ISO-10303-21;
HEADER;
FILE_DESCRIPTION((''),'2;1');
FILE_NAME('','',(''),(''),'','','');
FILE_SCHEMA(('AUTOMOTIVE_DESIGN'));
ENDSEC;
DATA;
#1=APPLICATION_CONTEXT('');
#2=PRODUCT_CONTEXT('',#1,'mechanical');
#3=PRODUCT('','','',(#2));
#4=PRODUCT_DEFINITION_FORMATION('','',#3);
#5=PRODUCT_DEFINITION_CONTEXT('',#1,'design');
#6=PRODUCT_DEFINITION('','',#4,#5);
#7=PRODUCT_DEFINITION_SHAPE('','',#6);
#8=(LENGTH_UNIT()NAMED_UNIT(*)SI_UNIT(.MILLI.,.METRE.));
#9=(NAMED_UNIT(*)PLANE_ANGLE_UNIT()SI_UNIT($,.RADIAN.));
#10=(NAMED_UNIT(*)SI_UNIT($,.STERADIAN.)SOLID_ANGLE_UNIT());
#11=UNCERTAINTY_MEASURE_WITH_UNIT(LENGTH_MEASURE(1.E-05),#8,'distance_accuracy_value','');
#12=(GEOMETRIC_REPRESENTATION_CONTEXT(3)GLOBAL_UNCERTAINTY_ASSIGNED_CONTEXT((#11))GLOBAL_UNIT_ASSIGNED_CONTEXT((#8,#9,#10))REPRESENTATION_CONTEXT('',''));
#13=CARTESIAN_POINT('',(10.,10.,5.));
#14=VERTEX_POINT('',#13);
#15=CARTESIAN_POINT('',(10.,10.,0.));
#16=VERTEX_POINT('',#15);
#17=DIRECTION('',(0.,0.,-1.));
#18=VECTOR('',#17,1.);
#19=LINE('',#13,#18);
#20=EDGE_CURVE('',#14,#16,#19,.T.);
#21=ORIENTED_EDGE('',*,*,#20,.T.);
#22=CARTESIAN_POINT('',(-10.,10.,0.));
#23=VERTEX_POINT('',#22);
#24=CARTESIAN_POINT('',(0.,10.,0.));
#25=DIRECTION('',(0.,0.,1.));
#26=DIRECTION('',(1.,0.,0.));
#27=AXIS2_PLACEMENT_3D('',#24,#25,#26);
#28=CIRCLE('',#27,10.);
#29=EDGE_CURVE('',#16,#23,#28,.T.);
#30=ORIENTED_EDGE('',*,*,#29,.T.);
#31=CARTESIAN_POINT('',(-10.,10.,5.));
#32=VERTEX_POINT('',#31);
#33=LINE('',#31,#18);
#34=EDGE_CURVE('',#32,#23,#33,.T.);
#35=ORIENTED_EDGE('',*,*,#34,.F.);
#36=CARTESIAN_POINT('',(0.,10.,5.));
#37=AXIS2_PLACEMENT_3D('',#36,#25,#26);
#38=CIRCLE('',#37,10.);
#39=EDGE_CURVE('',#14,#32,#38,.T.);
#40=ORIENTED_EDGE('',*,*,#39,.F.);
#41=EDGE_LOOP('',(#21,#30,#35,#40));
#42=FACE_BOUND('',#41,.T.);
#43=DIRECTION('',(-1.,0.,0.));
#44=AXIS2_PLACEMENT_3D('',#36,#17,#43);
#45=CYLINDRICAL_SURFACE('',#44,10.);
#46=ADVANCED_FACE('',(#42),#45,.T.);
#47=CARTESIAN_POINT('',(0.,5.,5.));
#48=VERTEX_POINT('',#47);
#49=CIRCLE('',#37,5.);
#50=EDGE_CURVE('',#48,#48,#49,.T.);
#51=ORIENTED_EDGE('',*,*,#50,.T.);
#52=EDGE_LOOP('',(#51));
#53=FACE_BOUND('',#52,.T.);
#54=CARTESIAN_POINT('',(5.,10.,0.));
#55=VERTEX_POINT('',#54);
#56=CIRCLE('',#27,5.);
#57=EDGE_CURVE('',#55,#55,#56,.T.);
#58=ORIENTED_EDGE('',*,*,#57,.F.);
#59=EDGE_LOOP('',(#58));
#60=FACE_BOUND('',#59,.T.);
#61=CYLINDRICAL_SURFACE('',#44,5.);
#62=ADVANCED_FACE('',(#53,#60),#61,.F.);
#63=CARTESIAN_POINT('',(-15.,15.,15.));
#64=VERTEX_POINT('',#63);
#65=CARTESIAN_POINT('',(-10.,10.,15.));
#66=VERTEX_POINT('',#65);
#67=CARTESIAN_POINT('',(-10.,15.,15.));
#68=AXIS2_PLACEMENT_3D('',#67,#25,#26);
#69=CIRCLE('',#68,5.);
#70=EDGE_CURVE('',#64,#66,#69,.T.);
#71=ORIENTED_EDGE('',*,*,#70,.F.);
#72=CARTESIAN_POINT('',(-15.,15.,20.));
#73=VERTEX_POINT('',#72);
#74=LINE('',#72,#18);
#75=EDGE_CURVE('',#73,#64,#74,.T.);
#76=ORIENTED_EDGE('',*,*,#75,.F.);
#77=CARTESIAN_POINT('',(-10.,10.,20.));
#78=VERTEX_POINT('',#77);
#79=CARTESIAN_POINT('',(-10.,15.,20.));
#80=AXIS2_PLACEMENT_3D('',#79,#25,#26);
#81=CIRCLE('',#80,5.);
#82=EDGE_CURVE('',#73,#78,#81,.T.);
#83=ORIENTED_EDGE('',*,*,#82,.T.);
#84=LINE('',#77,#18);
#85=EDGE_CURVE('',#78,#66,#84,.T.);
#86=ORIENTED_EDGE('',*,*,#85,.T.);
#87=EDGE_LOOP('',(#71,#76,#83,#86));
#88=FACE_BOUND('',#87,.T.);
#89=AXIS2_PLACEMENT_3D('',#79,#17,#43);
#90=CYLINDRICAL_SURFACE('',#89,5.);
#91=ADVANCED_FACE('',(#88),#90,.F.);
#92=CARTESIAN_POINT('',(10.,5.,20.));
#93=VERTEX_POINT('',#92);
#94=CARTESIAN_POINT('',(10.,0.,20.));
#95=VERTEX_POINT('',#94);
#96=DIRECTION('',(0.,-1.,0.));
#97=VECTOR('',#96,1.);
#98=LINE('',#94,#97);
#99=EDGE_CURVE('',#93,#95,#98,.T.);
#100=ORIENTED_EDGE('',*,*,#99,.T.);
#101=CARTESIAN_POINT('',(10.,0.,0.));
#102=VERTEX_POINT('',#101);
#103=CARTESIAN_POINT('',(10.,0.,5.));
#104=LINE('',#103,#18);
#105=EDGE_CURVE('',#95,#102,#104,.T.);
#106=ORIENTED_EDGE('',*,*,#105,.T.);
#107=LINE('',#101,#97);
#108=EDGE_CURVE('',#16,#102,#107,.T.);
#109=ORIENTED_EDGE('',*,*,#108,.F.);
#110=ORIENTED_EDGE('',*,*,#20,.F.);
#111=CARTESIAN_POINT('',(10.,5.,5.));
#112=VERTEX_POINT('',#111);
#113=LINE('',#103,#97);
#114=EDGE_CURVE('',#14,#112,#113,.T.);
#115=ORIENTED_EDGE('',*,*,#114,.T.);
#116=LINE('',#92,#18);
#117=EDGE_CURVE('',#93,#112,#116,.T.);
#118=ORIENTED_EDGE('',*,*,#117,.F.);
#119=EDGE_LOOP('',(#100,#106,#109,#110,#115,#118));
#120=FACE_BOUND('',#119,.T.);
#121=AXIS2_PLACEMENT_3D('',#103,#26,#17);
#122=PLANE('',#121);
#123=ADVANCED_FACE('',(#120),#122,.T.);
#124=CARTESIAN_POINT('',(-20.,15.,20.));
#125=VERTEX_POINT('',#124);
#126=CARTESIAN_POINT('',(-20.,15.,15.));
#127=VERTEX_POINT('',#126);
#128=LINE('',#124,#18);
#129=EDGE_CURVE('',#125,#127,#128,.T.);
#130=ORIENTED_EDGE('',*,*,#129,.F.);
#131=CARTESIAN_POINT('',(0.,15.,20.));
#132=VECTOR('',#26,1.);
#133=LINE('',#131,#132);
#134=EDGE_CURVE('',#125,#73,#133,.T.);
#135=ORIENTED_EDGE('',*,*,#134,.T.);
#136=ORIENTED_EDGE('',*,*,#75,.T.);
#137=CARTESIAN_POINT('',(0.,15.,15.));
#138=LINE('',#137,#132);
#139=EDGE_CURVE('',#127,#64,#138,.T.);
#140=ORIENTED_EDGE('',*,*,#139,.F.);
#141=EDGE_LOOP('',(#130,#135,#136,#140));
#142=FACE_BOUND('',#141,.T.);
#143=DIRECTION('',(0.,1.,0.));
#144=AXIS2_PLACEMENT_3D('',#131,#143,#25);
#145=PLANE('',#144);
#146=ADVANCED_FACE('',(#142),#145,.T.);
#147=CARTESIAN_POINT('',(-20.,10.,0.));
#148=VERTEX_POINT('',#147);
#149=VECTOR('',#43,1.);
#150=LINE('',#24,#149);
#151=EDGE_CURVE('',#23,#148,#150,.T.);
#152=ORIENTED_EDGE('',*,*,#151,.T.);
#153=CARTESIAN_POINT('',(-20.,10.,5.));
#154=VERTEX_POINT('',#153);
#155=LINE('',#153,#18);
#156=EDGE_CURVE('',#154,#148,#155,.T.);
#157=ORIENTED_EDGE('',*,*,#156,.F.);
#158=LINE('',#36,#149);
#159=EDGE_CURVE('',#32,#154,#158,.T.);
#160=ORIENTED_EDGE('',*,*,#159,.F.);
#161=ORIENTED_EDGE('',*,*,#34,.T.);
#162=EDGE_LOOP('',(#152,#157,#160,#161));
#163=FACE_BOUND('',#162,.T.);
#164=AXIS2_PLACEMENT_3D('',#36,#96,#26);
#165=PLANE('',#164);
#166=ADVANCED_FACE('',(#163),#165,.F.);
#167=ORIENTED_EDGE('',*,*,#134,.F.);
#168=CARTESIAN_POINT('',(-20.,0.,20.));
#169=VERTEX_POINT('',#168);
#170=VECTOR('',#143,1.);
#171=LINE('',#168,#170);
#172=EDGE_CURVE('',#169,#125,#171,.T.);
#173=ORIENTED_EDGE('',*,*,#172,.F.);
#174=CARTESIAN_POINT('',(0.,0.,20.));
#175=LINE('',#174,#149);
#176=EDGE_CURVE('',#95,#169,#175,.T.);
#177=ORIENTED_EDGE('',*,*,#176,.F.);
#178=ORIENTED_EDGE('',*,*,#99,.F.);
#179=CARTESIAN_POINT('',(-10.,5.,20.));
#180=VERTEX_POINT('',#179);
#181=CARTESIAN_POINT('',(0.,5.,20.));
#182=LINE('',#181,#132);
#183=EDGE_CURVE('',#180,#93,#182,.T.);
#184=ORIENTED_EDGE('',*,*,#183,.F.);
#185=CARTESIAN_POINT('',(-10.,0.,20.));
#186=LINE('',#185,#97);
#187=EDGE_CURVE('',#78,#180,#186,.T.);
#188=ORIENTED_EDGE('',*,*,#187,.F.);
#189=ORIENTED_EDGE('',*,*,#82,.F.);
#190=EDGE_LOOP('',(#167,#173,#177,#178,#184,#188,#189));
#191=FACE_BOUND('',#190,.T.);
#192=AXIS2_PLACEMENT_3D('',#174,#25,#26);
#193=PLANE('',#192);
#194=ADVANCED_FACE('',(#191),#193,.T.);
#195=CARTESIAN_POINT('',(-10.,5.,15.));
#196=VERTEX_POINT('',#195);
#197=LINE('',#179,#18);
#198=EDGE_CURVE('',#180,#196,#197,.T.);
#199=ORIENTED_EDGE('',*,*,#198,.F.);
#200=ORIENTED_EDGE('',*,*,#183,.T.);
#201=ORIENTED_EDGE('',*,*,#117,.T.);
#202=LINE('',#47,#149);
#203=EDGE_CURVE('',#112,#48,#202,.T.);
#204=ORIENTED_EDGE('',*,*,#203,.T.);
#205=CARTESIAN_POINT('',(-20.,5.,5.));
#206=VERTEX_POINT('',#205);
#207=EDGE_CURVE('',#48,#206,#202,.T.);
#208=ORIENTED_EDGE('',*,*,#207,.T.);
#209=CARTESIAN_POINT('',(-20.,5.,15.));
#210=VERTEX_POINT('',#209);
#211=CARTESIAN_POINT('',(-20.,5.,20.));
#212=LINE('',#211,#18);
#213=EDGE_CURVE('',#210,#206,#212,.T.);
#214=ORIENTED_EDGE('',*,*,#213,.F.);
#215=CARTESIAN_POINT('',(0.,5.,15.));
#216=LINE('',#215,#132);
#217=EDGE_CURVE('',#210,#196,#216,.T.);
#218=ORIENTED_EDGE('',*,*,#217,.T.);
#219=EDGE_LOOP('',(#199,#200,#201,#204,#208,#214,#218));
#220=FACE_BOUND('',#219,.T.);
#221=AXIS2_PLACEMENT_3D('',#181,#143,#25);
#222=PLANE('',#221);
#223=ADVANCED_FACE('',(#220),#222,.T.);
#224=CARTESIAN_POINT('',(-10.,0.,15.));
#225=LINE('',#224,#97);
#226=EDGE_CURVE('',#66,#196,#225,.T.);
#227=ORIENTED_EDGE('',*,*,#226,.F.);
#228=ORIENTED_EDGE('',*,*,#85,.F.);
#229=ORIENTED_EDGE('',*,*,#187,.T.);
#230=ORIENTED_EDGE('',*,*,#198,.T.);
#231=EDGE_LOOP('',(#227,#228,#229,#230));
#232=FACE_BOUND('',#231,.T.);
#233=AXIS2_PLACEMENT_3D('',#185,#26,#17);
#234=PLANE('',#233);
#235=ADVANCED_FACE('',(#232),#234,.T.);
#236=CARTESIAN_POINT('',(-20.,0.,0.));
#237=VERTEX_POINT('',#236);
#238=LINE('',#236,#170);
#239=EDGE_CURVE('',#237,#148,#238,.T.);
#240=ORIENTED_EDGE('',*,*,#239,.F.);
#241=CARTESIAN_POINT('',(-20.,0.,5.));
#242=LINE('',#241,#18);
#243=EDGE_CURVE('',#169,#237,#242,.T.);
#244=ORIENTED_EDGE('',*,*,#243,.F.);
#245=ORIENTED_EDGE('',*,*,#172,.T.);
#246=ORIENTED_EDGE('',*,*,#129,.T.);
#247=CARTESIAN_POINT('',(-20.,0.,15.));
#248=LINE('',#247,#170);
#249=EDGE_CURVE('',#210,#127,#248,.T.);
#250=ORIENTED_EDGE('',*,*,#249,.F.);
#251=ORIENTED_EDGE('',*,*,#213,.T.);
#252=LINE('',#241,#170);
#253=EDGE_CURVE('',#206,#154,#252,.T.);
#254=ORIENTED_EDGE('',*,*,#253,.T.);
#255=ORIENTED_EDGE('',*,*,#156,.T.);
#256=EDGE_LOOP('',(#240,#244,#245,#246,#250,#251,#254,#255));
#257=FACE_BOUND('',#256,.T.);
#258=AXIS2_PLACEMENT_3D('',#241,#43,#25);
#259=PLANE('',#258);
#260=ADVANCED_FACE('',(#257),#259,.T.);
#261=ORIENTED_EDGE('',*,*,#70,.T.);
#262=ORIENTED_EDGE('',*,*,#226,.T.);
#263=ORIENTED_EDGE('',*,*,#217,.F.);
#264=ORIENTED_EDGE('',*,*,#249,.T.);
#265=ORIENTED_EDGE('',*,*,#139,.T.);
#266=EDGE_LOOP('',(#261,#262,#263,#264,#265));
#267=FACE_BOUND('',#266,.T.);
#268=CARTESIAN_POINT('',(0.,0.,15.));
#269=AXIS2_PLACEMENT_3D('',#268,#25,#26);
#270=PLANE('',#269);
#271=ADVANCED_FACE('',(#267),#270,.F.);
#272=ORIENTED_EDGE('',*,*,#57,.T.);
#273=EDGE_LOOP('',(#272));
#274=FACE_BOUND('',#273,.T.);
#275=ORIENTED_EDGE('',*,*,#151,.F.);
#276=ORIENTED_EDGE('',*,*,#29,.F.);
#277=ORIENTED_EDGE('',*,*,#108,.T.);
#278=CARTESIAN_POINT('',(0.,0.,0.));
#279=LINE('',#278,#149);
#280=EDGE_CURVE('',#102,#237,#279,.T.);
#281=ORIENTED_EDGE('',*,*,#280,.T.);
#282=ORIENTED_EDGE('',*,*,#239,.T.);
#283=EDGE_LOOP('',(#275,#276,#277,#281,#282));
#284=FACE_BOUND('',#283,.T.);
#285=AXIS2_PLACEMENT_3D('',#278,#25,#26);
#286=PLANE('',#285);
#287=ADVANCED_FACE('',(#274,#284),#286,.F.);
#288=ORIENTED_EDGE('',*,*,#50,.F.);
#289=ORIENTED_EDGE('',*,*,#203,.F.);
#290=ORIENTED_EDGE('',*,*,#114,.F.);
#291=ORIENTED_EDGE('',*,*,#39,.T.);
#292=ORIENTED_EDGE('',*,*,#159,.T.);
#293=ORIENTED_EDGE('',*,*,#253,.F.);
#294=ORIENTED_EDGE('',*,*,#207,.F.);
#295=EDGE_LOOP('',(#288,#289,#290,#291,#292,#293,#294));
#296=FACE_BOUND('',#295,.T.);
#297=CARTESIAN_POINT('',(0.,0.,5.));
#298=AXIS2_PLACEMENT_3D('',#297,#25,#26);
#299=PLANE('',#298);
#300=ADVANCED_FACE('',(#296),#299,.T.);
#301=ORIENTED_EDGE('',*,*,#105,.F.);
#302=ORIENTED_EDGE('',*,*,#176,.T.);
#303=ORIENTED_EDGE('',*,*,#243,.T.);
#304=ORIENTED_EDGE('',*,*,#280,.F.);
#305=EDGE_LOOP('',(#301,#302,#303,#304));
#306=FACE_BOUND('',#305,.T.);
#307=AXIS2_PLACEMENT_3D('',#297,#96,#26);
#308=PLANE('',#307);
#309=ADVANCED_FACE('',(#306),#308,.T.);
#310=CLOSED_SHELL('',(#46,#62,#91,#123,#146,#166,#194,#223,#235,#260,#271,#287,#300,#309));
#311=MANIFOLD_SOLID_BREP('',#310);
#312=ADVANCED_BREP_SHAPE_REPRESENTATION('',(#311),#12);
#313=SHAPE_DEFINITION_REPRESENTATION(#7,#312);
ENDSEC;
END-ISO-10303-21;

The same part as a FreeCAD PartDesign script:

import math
import FreeCAD as App
import Part
import Sketcher

V = App.Vector
Q = App.Units.Quantity

doc = App.newDocument("Part")
params = doc.addObject("Spreadsheet::Sheet", "Params")
for row, (alias, value) in enumerate([
    ("sketch1_diameter", "10 mm"),
    ("sketch1_radius", "10 mm"),
    ("sketch1_width", "10 mm"),
    ("pad1_length", "5 mm"),
    ("sketch2_width", "30 mm"),
    ("sketch2_height", "5 mm"),
    ("pad2_length", "20 mm"),
    ("sketch3_radius", "5 mm"),
    ("sketch3_width", "5 mm"),
    ("pad3_length", "5 mm"),
], start=1):
    params.set(f"A{row}", alias)
    params.set(f"B{row}", "=" + value)
    params.setAlias(f"B{row}", alias)

body = doc.addObject("PartDesign::Body", "Body")

# Sketch on XY plane
sketch1 = doc.addObject("Sketcher::SketchObject", "Sketch")
body.addObject(sketch1)
sketch1.AttachmentSupport = (doc.XY_Plane, [""])
sketch1.MapMode = "FlatFace"
sketch1.addGeometry(Part.ArcOfCircle(Part.Circle(V(0, 10, 0), V(0, 0, 1), 10), math.radians(0), math.radians(180)), False)
sketch1.addGeometry(Part.LineSegment(V(-10, 10, 0), V(-20, 10, 0)), False)
sketch1.addGeometry(Part.LineSegment(V(-20, 10, 0), V(-20, 0, 0)), False)
sketch1.addGeometry(Part.LineSegment(V(-20, 0, 0), V(10, 0, 0)), False)
sketch1.addGeometry(Part.LineSegment(V(10, 0, 0), V(10, 10, 0)), False)
sketch1.addGeometry(Part.Circle(V(0, 10, 0), V(0, 0, 1), 5), False)
sketch1.addConstraint(Sketcher.Constraint("Coincident", 0, 2, 1, 1))
sketch1.addConstraint(Sketcher.Constraint("Coincident", 1, 2, 2, 1))
sketch1.addConstraint(Sketcher.Constraint("Coincident", 2, 2, 3, 1))
sketch1.addConstraint(Sketcher.Constraint("Coincident", 3, 2, 4, 1))
sketch1.addConstraint(Sketcher.Constraint("Tangent", 4, 2, 0, 1))
sketch1.addConstraint(Sketcher.Constraint("Horizontal", 1))
sketch1.addConstraint(Sketcher.Constraint("Vertical", 2))
sketch1.addConstraint(Sketcher.Constraint("Horizontal", 3))
sketch1.addConstraint(Sketcher.Constraint("Vertical", 4))
sketch1.addConstraint(Sketcher.Constraint("Coincident", 5, 3, 0, 3))
sketch1.addConstraint(Sketcher.Constraint("Symmetric", 0, 2, 4, 2, -2))
sketch1.addConstraint(Sketcher.Constraint("PointOnObject", 2, 2, -1))
sketch1.addConstraint(Sketcher.Constraint("Equal", 1, 2))
sketch1.addConstraint(Sketcher.Constraint("Diameter", 5, Q("10 mm")))
sketch1.addConstraint(Sketcher.Constraint("Radius", 0, Q("10 mm")))
sketch1.addConstraint(Sketcher.Constraint("DistanceX", 1, 2, 1, 1, Q("10 mm")))
sketch1.setExpression("Constraints[13]", "Params.sketch1_diameter")
sketch1.setExpression("Constraints[14]", "Params.sketch1_radius")
sketch1.setExpression("Constraints[15]", "Params.sketch1_width")
pad1 = doc.addObject("PartDesign::Pad", "Pad")
body.addObject(pad1)
pad1.Profile = sketch1
pad1.setExpression("Length", "Params.pad1_length")

# Sketch on XY plane
sketch2 = doc.addObject("Sketcher::SketchObject", "Sketch001")
body.addObject(sketch2)
sketch2.AttachmentSupport = (doc.XY_Plane, [""])
sketch2.MapMode = "FlatFace"
sketch2.addGeometry(Part.LineSegment(V(10, 0, 0), V(10, 5, 0)), False)
sketch2.addGeometry(Part.LineSegment(V(10, 5, 0), V(-20, 5, 0)), False)
sketch2.addGeometry(Part.LineSegment(V(-20, 5, 0), V(-20, 0, 0)), False)
sketch2.addGeometry(Part.LineSegment(V(-20, 0, 0), V(10, 0, 0)), False)
sketch2.addConstraint(Sketcher.Constraint("Coincident", 0, 2, 1, 1))
sketch2.addConstraint(Sketcher.Constraint("Coincident", 1, 2, 2, 1))
sketch2.addConstraint(Sketcher.Constraint("Coincident", 2, 2, 3, 1))
sketch2.addConstraint(Sketcher.Constraint("Coincident", 3, 2, 0, 1))
sketch2.addConstraint(Sketcher.Constraint("Vertical", 0))
sketch2.addConstraint(Sketcher.Constraint("Horizontal", 1))
sketch2.addConstraint(Sketcher.Constraint("Vertical", 2))
sketch2.addConstraint(Sketcher.Constraint("Horizontal", 3))
sketch2.addConstraint(Sketcher.Constraint("PointOnObject", 2, 2, -1))
sketch2.addConstraint(Sketcher.Constraint("DistanceX", 1, 2, 1, 1, Q("30 mm")))
sketch2.addConstraint(Sketcher.Constraint("DistanceY", 0, 1, 0, 2, Q("5 mm")))
sketch2.addConstraint(Sketcher.Constraint("DistanceX", -1, 1, 0, 2, Q("10 mm")))
sketch2.setExpression("Constraints[9]", "Params.sketch2_width")
sketch2.setExpression("Constraints[10]", "Params.sketch2_height")
pad2 = doc.addObject("PartDesign::Pad", "Pad001")
body.addObject(pad2)
pad2.Profile = sketch2
pad2.setExpression("Length", "Params.pad2_length")

# Sketch on XY plane
sketch3 = doc.addObject("Sketcher::SketchObject", "Sketch002")
body.addObject(sketch3)
sketch3.AttachmentSupport = (doc.XY_Plane, [""])
sketch3.MapMode = "FlatFace"
sketch3.AttachmentOffset = App.Placement(V(0, 0, 15), App.Rotation())
sketch3.addGeometry(Part.ArcOfCircle(Part.Circle(V(-10, 15, 0), V(0, 0, 1), 5), math.radians(180), math.radians(270)), False)
sketch3.addGeometry(Part.LineSegment(V(-15, 15, 0), V(-20, 15, 0)), False)
sketch3.addGeometry(Part.LineSegment(V(-20, 15, 0), V(-20, 5, 0)), False)
sketch3.addGeometry(Part.LineSegment(V(-20, 5, 0), V(-10, 5, 0)), False)
sketch3.addGeometry(Part.LineSegment(V(-10, 5, 0), V(-10, 10, 0)), False)
sketch3.addConstraint(Sketcher.Constraint("Coincident", 0, 1, 1, 1))
sketch3.addConstraint(Sketcher.Constraint("Coincident", 1, 2, 2, 1))
sketch3.addConstraint(Sketcher.Constraint("Coincident", 2, 2, 3, 1))
sketch3.addConstraint(Sketcher.Constraint("Coincident", 3, 2, 4, 1))
sketch3.addConstraint(Sketcher.Constraint("Coincident", 4, 2, 0, 2))
sketch3.addConstraint(Sketcher.Constraint("Horizontal", 1))
sketch3.addConstraint(Sketcher.Constraint("Vertical", 2))
sketch3.addConstraint(Sketcher.Constraint("Horizontal", 3))
sketch3.addConstraint(Sketcher.Constraint("Vertical", 4))
sketch3.addConstraint(Sketcher.Constraint("Vertical", 0, 3, 3, 2))
sketch3.addConstraint(Sketcher.Constraint("Equal", 3, 2))
sketch3.addConstraint(Sketcher.Constraint("Equal", 1, 4))
sketch3.addConstraint(Sketcher.Constraint("Radius", 0, Q("5 mm")))
sketch3.addConstraint(Sketcher.Constraint("DistanceX", 1, 2, 1, 1, Q("5 mm")))
sketch3.addConstraint(Sketcher.Constraint("DistanceX", 0, 3, -1, 1, Q("10 mm")))
sketch3.addConstraint(Sketcher.Constraint("DistanceY", -1, 1, 0, 3, Q("15 mm")))
sketch3.setExpression("Constraints[12]", "Params.sketch3_radius")
sketch3.setExpression("Constraints[13]", "Params.sketch3_width")
pad3 = doc.addObject("PartDesign::Pad", "Pad002")
body.addObject(pad3)
pad3.Profile = sketch3
pad3.setExpression("Length", "Params.pad3_length")

doc.recompute()
